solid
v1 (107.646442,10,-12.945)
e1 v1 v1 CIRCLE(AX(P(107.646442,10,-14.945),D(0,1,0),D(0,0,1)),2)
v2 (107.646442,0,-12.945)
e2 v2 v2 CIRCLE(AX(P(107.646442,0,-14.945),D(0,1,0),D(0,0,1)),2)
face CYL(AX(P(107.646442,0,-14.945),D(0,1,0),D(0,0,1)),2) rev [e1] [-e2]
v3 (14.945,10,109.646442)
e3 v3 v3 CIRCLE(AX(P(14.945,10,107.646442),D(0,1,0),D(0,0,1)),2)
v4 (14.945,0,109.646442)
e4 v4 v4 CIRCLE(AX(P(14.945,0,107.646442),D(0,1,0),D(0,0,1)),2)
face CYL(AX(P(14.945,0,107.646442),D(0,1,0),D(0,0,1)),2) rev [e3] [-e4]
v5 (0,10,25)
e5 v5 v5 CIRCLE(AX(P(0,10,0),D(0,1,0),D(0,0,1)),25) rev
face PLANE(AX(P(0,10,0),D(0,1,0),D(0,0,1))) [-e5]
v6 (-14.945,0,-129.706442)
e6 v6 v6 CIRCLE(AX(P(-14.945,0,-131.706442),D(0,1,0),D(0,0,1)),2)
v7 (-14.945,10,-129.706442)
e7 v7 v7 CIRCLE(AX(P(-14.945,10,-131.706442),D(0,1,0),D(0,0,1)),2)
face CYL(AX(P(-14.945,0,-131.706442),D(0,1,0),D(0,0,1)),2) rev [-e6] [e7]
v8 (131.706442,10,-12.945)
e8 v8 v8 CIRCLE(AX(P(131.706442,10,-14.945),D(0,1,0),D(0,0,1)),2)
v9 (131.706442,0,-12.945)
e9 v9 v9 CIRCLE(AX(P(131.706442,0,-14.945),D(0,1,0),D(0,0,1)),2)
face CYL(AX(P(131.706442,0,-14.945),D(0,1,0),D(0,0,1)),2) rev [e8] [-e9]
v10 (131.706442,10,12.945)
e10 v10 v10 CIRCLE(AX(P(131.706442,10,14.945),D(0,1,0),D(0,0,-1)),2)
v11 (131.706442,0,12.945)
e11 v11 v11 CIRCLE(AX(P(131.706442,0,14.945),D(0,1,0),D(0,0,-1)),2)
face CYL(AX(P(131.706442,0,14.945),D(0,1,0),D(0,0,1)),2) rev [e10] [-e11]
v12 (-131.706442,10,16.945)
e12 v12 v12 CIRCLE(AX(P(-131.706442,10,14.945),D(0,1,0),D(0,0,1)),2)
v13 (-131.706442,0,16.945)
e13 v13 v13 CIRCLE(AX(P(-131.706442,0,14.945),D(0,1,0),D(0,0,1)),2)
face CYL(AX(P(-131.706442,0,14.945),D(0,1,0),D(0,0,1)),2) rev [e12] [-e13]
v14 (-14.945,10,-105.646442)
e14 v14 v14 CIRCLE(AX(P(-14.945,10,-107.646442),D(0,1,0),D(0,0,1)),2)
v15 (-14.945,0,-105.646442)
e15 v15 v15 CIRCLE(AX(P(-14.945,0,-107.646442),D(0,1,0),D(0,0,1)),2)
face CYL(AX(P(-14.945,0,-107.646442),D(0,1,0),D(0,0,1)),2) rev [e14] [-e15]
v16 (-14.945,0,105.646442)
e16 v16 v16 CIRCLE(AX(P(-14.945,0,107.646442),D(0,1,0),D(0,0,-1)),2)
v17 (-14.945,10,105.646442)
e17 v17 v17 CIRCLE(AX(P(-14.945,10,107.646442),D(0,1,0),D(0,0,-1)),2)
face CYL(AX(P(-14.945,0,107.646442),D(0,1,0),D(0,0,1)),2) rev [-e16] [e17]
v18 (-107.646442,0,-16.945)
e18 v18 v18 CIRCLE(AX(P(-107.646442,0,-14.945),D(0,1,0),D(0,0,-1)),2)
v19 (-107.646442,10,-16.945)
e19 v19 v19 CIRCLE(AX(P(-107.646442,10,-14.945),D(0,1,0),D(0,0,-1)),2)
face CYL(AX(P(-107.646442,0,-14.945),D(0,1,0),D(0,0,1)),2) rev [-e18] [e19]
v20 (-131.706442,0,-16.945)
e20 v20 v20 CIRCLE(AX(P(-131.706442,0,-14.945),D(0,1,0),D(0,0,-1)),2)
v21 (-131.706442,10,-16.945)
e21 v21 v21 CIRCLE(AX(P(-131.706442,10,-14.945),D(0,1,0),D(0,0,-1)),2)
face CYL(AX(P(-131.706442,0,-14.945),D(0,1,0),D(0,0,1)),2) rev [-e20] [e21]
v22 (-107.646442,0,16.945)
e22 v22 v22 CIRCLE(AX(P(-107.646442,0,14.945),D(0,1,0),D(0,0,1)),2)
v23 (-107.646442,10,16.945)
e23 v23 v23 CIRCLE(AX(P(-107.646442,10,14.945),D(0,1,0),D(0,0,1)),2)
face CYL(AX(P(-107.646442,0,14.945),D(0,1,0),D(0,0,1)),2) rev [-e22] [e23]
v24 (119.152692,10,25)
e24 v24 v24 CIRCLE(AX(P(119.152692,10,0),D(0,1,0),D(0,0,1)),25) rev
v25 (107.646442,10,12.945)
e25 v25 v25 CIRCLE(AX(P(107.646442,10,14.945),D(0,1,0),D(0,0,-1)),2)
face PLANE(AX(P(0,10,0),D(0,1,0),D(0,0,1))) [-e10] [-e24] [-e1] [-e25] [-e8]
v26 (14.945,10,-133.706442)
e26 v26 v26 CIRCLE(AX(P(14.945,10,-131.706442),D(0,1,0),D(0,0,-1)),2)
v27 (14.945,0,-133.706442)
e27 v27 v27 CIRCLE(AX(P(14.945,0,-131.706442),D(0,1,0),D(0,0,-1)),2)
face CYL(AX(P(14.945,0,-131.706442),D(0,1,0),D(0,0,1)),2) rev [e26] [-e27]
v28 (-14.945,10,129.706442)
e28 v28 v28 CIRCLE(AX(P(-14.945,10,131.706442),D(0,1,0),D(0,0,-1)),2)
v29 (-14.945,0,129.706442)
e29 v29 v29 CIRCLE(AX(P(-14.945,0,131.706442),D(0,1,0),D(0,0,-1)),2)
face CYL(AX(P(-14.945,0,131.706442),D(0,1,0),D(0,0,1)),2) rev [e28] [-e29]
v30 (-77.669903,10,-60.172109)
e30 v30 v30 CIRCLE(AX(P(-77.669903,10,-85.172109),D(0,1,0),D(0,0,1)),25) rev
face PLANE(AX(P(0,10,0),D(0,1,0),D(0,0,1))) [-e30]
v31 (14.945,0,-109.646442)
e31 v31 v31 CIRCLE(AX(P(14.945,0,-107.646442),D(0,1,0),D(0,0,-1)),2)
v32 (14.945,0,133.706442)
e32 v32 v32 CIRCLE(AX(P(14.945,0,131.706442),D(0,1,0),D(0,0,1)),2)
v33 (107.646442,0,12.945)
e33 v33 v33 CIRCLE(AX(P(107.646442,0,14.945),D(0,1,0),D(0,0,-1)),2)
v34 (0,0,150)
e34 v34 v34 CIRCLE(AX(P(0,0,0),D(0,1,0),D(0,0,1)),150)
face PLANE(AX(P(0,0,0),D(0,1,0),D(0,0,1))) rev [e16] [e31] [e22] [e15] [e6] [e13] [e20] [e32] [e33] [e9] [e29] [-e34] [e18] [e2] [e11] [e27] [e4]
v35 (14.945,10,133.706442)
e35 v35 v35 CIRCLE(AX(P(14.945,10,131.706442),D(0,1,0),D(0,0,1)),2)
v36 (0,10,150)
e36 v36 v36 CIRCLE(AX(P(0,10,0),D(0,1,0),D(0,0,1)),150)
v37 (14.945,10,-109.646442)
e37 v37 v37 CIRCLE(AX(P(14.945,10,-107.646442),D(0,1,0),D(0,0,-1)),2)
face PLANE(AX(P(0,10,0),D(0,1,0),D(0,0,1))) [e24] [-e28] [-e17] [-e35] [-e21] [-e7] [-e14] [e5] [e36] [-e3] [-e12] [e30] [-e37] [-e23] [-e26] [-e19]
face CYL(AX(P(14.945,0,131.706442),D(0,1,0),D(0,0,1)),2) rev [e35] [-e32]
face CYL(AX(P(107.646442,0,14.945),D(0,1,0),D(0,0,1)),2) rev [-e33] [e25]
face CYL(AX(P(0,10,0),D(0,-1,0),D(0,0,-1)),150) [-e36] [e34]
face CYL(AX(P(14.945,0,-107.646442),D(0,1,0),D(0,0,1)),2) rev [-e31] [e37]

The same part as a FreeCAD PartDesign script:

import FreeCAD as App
import Part
import Sketcher

doc = App.newDocument("Part")
body = doc.addObject("PartDesign::Body", "Body")

sketch1 = body.newObject("Sketcher::SketchObject", "Sketch")
sketch1.AttachmentSupport = (doc.getObject("XZ_Plane"), [""])
sketch1.MapMode = "FlatFace"
sketch1.addGeometry(Part.Circle(App.Vector(0, 0, 0), App.Vector(0, 0, 1), 150), False)
sketch1.addConstraint([
    Sketcher.Constraint("Coincident", 0, 3, -1, 1),
    Sketcher.Constraint("Diameter", 0, 300.0),
])
pad1 = body.newObject("PartDesign::Pad", "Pad")
pad1.Profile = sketch1
pad1.Length = 10
pad1.Reversed = True

sketch2 = body.newObject("Sketcher::SketchObject", "Sketch001")
sketch2.AttachmentSupport = (doc.getObject("XZ_Plane"), [""])
sketch2.MapMode = "FlatFace"
sketch2.AttachmentOffset = App.Placement(App.Vector(0, 0, -10), App.Rotation())
sketch2.addGeometry([
    Part.Circle(App.Vector(-14.9, -131.7, 0), App.Vector(0, 0, 1), 2),
    Part.Circle(App.Vector(-14.9, -107.6, 0), App.Vector(0, 0, 1), 2),
    Part.Circle(App.Vector(14.9, -107.6, 0), App.Vector(0, 0, 1), 2),
    Part.Circle(App.Vector(14.9, -131.7, 0), App.Vector(0, 0, 1), 2),
    Part.Circle(App.Vector(131.7, -14.9, 0), App.Vector(0, 0, 1), 2),
    Part.Circle(App.Vector(131.7, 14.9, 0), App.Vector(0, 0, 1), 2),
    Part.Circle(App.Vector(107.6, 14.9, 0), App.Vector(0, 0, 1), 2),
    Part.Circle(App.Vector(107.6, -14.9, 0), App.Vector(0, 0, 1), 2),
    Part.Circle(App.Vector(14.9, 131.7, 0), App.Vector(0, 0, 1), 2),
    Part.Circle(App.Vector(-14.9, 131.7, 0), App.Vector(0, 0, 1), 2),
    Part.Circle(App.Vector(-14.9, 107.6, 0), App.Vector(0, 0, 1), 2),
    Part.Circle(App.Vector(14.9, 107.6, 0), App.Vector(0, 0, 1), 2),
    Part.Circle(App.Vector(-131.7, 14.9, 0), App.Vector(0, 0, 1), 2),
    Part.Circle(App.Vector(-131.7, -14.9, 0), App.Vector(0, 0, 1), 2),
    Part.Circle(App.Vector(-107.6, -14.9, 0), App.Vector(0, 0, 1), 2),
    Part.Circle(App.Vector(-107.6, 14.9, 0), App.Vector(0, 0, 1), 2),
], False)
sketch2.addConstraint([
    Sketcher.Constraint("Equal", 0, 1),
    Sketcher.Constraint("Equal", 1, 2),
    Sketcher.Constraint("Equal", 2, 3),
    Sketcher.Constraint("Equal", 3, 4),
    Sketcher.Constraint("Equal", 4, 5),
    Sketcher.Constraint("Equal", 5, 6),
    Sketcher.Constraint("Equal", 6, 7),
    Sketcher.Constraint("Equal", 7, 8),
    Sketcher.Constraint("Equal", 8, 9),
    Sketcher.Constraint("Equal", 9, 10),
    Sketcher.Constraint("Equal", 10, 11),
    Sketcher.Constraint("Equal", 11, 12),
    Sketcher.Constraint("Equal", 12, 13),
    Sketcher.Constraint("Equal", 13, 14),
    Sketcher.Constraint("Equal", 14, 15),
    Sketcher.Constraint("Symmetric", 0, 3, 8, 3, -1, 1),
    Sketcher.Constraint("Symmetric", 3, 3, 9, 3, -1, 1),
    Sketcher.Constraint("Symmetric", 2, 3, 10, 3, -1, 1),
    Sketcher.Constraint("Symmetric", 1, 3, 11, 3, -1, 1),
    Sketcher.Constraint("Symmetric", 4, 3, 12, 3, -1, 1),
    Sketcher.Constraint("Symmetric", 5, 3, 13, 3, -1, 1),
    Sketcher.Constraint("Symmetric", 6, 3, 14, 3, -1, 1),
    Sketcher.Constraint("Symmetric", 7, 3, 15, 3, -1, 1),
    Sketcher.Constraint("Symmetric", 1, 3, 2, 3, -2),
    Sketcher.Constraint("Symmetric", 0, 3, 3, 3, -2),
    Sketcher.Constraint("Symmetric", 5, 3, 12, 3, -2),
    Sketcher.Constraint("Symmetric", 7, 3, 14, 3, -2),
    Sketcher.Constraint("Horizontal", 5, 3, 6, 3),
    Sketcher.Constraint("Vertical", 0, 3, 1, 3),
    Sketcher.Constraint("Diameter", 0, 4.0),
    Sketcher.Constraint("DistanceY", 0, 3, 1, 3, 24.06),
    Sketcher.Constraint("DistanceX", 1, 3, 2, 3, 29.89),
    Sketcher.Constraint("DistanceY", 4, 3, 5, 3, 29.89),
    Sketcher.Constraint("DistanceX", 6, 3, 5, 3, 24.06),
    Sketcher.Constraint("DistanceY", 0, 3, -1, 1, 131.706442),
    Sketcher.Constraint("DistanceX", -1, 1, 4, 3, 131.706442),
])
pocket1 = body.newObject("PartDesign::Pocket", "Pocket")
pocket1.Profile = sketch2
pocket1.Length = 10
pocket1.Reversed = True

doc.recompute()
